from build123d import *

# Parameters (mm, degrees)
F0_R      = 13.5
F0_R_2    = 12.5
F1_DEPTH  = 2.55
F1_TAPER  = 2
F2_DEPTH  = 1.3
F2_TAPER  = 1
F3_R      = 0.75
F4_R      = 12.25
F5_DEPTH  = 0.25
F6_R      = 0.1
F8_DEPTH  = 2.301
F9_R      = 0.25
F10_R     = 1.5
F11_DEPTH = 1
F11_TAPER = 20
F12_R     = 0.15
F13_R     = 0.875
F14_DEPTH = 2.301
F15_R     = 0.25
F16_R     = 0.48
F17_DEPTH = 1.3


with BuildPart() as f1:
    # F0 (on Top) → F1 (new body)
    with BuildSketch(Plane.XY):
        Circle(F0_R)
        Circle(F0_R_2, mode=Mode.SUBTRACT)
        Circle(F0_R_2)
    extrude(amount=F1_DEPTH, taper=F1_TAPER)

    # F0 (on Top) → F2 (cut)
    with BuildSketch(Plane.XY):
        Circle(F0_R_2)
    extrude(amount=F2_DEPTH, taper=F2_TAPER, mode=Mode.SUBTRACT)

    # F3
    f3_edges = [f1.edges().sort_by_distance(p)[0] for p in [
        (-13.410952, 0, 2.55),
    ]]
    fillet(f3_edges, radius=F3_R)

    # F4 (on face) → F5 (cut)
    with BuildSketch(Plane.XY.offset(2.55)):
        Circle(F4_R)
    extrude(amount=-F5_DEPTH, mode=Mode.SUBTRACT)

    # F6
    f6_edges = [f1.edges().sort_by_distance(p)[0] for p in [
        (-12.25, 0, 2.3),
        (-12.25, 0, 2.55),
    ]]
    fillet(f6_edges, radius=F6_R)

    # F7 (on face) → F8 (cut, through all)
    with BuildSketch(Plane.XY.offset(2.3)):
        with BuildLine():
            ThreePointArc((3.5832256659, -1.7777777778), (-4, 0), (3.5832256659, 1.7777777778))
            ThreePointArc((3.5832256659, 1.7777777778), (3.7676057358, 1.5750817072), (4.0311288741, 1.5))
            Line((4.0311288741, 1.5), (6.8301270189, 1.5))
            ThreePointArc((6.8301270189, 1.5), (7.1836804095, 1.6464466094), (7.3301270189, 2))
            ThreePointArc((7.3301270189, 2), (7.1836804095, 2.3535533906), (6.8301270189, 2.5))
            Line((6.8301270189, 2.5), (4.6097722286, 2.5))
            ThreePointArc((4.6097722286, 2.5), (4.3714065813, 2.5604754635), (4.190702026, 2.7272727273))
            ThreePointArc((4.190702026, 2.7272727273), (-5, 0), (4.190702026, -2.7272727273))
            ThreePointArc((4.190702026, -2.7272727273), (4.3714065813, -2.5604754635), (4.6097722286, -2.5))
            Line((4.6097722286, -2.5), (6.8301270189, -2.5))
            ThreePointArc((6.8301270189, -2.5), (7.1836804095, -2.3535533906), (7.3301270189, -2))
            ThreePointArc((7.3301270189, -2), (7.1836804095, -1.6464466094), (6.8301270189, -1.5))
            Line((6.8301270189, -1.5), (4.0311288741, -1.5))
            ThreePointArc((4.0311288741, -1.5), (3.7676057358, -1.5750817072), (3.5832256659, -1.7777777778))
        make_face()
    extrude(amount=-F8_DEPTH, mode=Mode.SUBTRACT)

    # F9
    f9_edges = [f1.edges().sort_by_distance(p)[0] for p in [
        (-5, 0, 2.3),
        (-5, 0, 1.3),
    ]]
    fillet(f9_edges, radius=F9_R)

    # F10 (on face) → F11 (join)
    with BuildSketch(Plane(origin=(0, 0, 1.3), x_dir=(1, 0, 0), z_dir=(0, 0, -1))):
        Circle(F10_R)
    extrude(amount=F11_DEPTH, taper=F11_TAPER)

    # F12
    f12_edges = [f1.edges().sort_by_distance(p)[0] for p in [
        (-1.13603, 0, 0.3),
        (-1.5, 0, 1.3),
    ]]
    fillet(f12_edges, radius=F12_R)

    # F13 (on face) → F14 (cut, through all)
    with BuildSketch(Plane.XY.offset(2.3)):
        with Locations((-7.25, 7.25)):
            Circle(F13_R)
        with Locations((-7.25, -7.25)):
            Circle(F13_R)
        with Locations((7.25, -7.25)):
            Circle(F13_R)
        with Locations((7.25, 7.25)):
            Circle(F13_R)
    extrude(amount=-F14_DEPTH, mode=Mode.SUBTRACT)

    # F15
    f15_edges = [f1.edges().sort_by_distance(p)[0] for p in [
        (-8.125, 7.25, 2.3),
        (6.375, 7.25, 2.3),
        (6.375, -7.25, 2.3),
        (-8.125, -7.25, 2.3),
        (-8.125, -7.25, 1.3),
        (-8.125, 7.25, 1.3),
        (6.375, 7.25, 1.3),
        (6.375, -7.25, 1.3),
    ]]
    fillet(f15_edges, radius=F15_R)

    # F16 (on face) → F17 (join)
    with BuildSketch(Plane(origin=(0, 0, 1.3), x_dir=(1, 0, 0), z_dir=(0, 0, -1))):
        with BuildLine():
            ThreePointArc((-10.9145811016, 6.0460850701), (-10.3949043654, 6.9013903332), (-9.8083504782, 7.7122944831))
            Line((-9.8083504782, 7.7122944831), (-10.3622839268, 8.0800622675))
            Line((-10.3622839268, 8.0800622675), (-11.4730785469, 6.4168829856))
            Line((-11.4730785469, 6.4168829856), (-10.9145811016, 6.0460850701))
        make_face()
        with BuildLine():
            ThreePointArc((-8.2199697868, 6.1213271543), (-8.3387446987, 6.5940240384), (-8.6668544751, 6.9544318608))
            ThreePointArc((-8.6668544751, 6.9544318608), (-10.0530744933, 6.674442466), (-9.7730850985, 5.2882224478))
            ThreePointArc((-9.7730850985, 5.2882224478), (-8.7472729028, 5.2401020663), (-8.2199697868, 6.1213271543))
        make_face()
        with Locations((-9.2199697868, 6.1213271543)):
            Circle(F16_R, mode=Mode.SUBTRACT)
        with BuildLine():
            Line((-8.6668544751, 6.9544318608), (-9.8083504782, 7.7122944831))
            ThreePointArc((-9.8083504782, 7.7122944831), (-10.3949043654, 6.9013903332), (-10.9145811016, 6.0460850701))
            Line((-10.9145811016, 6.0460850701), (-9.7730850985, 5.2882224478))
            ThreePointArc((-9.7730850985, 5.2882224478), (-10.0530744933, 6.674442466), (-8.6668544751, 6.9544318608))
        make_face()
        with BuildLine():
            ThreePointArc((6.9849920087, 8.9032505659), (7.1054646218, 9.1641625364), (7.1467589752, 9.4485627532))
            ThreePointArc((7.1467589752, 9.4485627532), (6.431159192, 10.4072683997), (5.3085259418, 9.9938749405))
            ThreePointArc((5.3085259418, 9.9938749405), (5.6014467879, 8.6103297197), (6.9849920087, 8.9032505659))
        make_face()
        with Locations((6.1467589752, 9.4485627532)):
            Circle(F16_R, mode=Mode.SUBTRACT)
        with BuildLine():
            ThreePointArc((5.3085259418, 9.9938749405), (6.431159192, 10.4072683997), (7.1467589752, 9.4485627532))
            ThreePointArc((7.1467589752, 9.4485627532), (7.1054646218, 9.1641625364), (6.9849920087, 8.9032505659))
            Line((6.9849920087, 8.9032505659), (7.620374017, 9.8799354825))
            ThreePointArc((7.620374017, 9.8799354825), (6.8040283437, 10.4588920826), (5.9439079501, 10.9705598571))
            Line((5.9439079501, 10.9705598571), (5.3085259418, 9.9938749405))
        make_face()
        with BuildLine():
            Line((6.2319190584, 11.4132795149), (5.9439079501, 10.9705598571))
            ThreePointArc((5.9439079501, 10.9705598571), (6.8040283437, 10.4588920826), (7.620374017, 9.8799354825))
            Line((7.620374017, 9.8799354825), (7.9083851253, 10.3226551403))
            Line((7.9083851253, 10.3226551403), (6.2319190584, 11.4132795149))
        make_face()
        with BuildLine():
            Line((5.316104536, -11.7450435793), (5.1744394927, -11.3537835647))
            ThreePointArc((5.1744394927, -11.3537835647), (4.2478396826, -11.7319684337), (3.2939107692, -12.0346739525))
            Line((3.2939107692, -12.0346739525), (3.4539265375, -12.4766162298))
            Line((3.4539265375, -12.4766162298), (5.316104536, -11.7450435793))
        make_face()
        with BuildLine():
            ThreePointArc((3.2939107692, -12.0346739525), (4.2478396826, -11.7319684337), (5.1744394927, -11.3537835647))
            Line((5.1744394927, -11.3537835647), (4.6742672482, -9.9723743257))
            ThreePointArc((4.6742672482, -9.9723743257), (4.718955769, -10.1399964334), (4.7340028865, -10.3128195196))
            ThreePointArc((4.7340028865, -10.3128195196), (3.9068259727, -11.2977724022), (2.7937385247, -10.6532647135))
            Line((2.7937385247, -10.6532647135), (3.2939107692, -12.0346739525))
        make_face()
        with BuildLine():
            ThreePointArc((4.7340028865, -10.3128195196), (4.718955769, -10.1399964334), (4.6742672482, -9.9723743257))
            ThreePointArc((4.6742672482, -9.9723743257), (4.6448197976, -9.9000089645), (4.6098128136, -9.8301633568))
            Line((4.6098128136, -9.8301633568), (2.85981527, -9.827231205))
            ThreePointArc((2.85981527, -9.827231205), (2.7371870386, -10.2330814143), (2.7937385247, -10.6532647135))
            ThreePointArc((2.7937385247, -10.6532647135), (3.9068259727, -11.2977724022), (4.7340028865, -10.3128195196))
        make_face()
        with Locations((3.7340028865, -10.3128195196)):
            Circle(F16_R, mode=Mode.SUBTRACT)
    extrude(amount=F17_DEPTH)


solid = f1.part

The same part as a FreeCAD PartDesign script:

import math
import FreeCAD as App
import Part
import Sketcher

V = App.Vector


def edges_at(feature, points):
    """Names of the edges that pass closest to the given points."""
    edges = feature.Shape.Edges
    near = lambda p: min(range(len(edges)), key=lambda i: edges[i].distToShape(Part.Vertex(*p))[0])
    return sorted({f"Edge{near(p) + 1}" for p in points})

doc = App.newDocument("Part")
body = doc.addObject("PartDesign::Body", "Body")

sketch1 = body.newObject("Sketcher::SketchObject", "Sketch")
sketch1.AttachmentSupport = (doc.getObject("XY_Plane"), [""])
sketch1.MapMode = "FlatFace"
sketch1.addGeometry(Part.Circle(V(0, 0, 0), V(0, 0, 1), 14), False)
sketch1.addConstraint([
    Sketcher.Constraint("Coincident", 0, 3, -1, 1),
    Sketcher.Constraint("Diameter", 0, 27.0),
])
pad1 = body.newObject("PartDesign::Pad", "Pad")
pad1.Profile = sketch1
pad1.Length = 2.55
pad1.TaperAngle = -2

sketch2 = body.newObject("Sketcher::SketchObject", "Sketch001")
sketch2.AttachmentSupport = (doc.getObject("XY_Plane"), [""])
sketch2.MapMode = "FlatFace"
sketch2.addGeometry(Part.Circle(V(0, 0, 0), V(0, 0, 1), 12), False)
sketch2.addConstraint([
    Sketcher.Constraint("Coincident", 0, 3, -1, 1),
    Sketcher.Constraint("Diameter", 0, 25.0),
])
pocket1 = body.newObject("PartDesign::Pocket", "Pocket")
pocket1.Profile = sketch2
pocket1.Length = 1.3
pocket1.Reversed = True
pocket1.TaperAngle = -1
doc.recompute()

fillet = body.newObject("PartDesign::Fillet", "Fillet")
fillet.Base = (pocket1, edges_at(pocket1, [(-13.411, 0, 2.55)]))
fillet.Radius = 0.75

sketch3 = body.newObject("Sketcher::SketchObject", "Sketch002")
sketch3.AttachmentSupport = (doc.getObject("XY_Plane"), [""])
sketch3.MapMode = "FlatFace"
sketch3.AttachmentOffset = App.Placement(V(0, 0, 2.55), App.Rotation())
sketch3.addGeometry(Part.Circle(V(0, 0, 0), V(0, 0, 1), 12), False)
sketch3.addConstraint([
    Sketcher.Constraint("Coincident", 0, 3, -1, 1),
    Sketcher.Constraint("Diameter", 0, 24.5),
])
pocket2 = body.newObject("PartDesign::Pocket", "Pocket001")
pocket2.Profile = sketch3
pocket2.Length = 0.25
doc.recompute()

fillet2 = body.newObject("PartDesign::Fillet", "Fillet001")
fillet2.Base = (pocket2, edges_at(pocket2, [(-12.25, 0, 2.3), (-12.25, 0, 2.55)]))
fillet2.Radius = 0.1

sketch4 = body.newObject("Sketcher::SketchObject", "Sketch003")
sketch4.AttachmentSupport = (doc.getObject("XY_Plane"), [""])
sketch4.MapMode = "FlatFace"
sketch4.AttachmentOffset = App.Placement(V(0, 0, 2.3), App.Rotation())
sketch4.addGeometry([
    Part.ArcOfCircle(Part.Circle(V(0, 0, 0), V(0, 0, 1), 4), math.radians(26), math.radians(334)),
    Part.ArcOfCircle(Part.Circle(V(4.03, 2, 0), V(0, 0, 1), 0.5), math.radians(-154), math.radians(-90)),
    Part.LineSegment(V(4.03, 1.5, 0), V(6.83, 1.5, 0)),
    Part.ArcOfCircle(Part.Circle(V(6.83, 2, 0), V(0, 0, 1), 0.5), math.radians(-90), math.radians(0)),
    Part.ArcOfCircle(Part.Circle(V(6.83, 2, 0), V(0, 0, 1), 0.5), math.radians(0), math.radians(90)),
    Part.LineSegment(V(6.83, 2.5, 0), V(4.61, 2.5, 0)),
    Part.ArcOfCircle(Part.Circle(V(4.61, 3, 0), V(0, 0, 1), 0.5), math.radians(-147), math.radians(-90)),
    Part.ArcOfCircle(Part.Circle(V(0, 0, 0), V(0, 0, 1), 5), math.radians(33), math.radians(327)),
    Part.ArcOfCircle(Part.Circle(V(4.61, -3, 0), V(0, 0, 1), 0.5), math.radians(90), math.radians(147)),
    Part.LineSegment(V(4.61, -2.5, 0), V(6.83, -2.5, 0)),
    Part.ArcOfCircle(Part.Circle(V(6.83, -2, 0), V(0, 0, 1), 0.5), math.radians(-90), math.radians(0)),
    Part.ArcOfCircle(Part.Circle(V(6.83, -2, 0), V(0, 0, 1), 0.5), math.radians(0), math.radians(90)),
    Part.LineSegment(V(6.83, -1.5, 0), V(4.03, -1.5, 0)),
    Part.ArcOfCircle(Part.Circle(V(4.03, -2, 0), V(0, 0, 1), 0.5), math.radians(90), math.radians(154)),
], False)
sketch4.addConstraint([
    Sketcher.Constraint("Tangent", 0, 1, 1, 1),
    Sketcher.Constraint("Tangent", 1, 2, 2, 1),
    Sketcher.Constraint("Tangent", 2, 2, 3, 1),
    Sketcher.Constraint("Tangent", 3, 2, 4, 1),
    Sketcher.Constraint("Tangent", 4, 2, 5, 1),
    Sketcher.Constraint("Tangent", 5, 2, 6, 2),
    Sketcher.Constraint("Tangent", 6, 1, 7, 1),
    Sketcher.Constraint("Tangent", 7, 2, 8, 2),
    Sketcher.Constraint("Tangent", 8, 1, 9, 1),
    Sketcher.Constraint("Tangent", 9, 2, 10, 1),
    Sketcher.Constraint("Tangent", 10, 2, 11, 1),
    Sketcher.Constraint("Tangent", 11, 2, 12, 1),
    Sketcher.Constraint("Tangent", 12, 2, 13, 1),
    Sketcher.Constraint("Tangent", 13, 2, 0, 2),
    Sketcher.Constraint("Horizontal", 2),
    Sketcher.Constraint("Horizontal", 5),
    Sketcher.Constraint("Horizontal", 9),
    Sketcher.Constraint("Horizontal", 12),
    Sketcher.Constraint("Coincident", 0, 3, -1, 1),
    Sketcher.Constraint("Coincident", 7, 3, -1, 1),
    Sketcher.Constraint("Equal", 1, 3),
    Sketcher.Constraint("Equal", 3, 4),
    Sketcher.Constraint("Equal", 4, 6),
    Sketcher.Constraint("Equal", 6, 8),
    Sketcher.Constraint("Equal", 8, 10),
    Sketcher.Constraint("Equal", 10, 11),
    Sketcher.Constraint("Equal", 11, 13),
    Sketcher.Constraint("Symmetric", 3, 3, 10, 3, -1),
    Sketcher.Constraint("Horizontal", 4, 3, 3, 2),
    Sketcher.Constraint("Horizontal", 13, 3, 10, 2),
    Sketcher.Constraint("Radius", 0, 4.0),
    Sketcher.Constraint("Radius", 7, 5.0),
    Sketcher.Constraint("Radius", 1, 0.5),
    Sketcher.Constraint("DistanceY", -1, 1, 1, 3, 2.0),
    Sketcher.Constraint("DistanceX", 2, 1, 2, 2, 2.798998),
])
pocket3 = body.newObject("PartDesign::Pocket", "Pocket002")
pocket3.Profile = sketch4
pocket3.Type = "ThroughAll"
doc.recompute()

fillet3 = body.newObject("PartDesign::Fillet", "Fillet002")
fillet3.Base = (pocket3, edges_at(pocket3, [(-5, 0, 2.3), (-5, 0, 1.3)]))
fillet3.Radius = 0.25

sketch5 = body.newObject("Sketcher::SketchObject", "Sketch004")
sketch5.AttachmentSupport = (doc.getObject("XY_Plane"), [""])
sketch5.MapMode = "FlatFace"
sketch5.AttachmentOffset = App.Placement(V(0, 0, 1.3), App.Rotation())
sketch5.addGeometry(Part.Circle(V(0, 0, 0), V(0, 0, 1), 1.5), False)
sketch5.addConstraint([
    Sketcher.Constraint("Coincident", 0, 3, -1, 1),
    Sketcher.Constraint("Diameter", 0, 3.0),
])
pad2 = body.newObject("PartDesign::Pad", "Pad001")
pad2.Profile = sketch5
pad2.Length = 1
pad2.Reversed = True
pad2.TaperAngle = -20
doc.recompute()

fillet4 = body.newObject("PartDesign::Fillet", "Fillet003")
fillet4.Base = (pad2, edges_at(pad2, [(-1.136, 0, 0.3), (-1.5, 0, 1.3)]))
fillet4.Radius = 0.15

sketch6 = body.newObject("Sketcher::SketchObject", "Sketch005")
sketch6.AttachmentSupport = (doc.getObject("XY_Plane"), [""])
sketch6.MapMode = "FlatFace"
sketch6.AttachmentOffset = App.Placement(V(0, 0, 2.3), App.Rotation())
sketch6.addGeometry([
    Part.Circle(V(-7.2, 7.2, 0), V(0, 0, 1), 0.9),
    Part.Circle(V(-7.2, -7.2, 0), V(0, 0, 1), 0.9),
    Part.Circle(V(7.2, -7.2, 0), V(0, 0, 1), 0.9),
    Part.Circle(V(7.2, 7.2, 0), V(0, 0, 1), 0.9),
], False)
sketch6.addConstraint([
    Sketcher.Constraint("Equal", 0, 1),
    Sketcher.Constraint("Equal", 1, 2),
    Sketcher.Constraint("Equal", 2, 3),
    Sketcher.Constraint("Symmetric", 0, 3, 2, 3, -1, 1),
    Sketcher.Constraint("Symmetric", 1, 3, 3, 3, -1, 1),
    Sketcher.Constraint("Symmetric", 1, 3, 2, 3, -2),
    Sketcher.Constraint("Diameter", 0, 1.75),
    Sketcher.Constraint("DistanceY", 1, 3, 0, 3, 14.5),
    Sketcher.Constraint("DistanceX", 1, 3, 2, 3, 14.5),
])
pocket4 = body.newObject("PartDesign::Pocket", "Pocket003")
pocket4.Profile = sketch6
pocket4.Type = "ThroughAll"
doc.recompute()

fillet5 = body.newObject("PartDesign::Fillet", "Fillet004")
fillet5.Base = (pocket4, edges_at(pocket4, [
    (-8.125, 7.25, 2.3),
    (6.375, 7.25, 2.3),
    (6.375, -7.25, 2.3),
    (-8.125, -7.25, 2.3),
    (-8.125, -7.25, 1.3),
    (-8.125, 7.25, 1.3),
    (6.375, 7.25, 1.3),
    (6.375, -7.25, 1.3),
]))
fillet5.Radius = 0.25

sketch7 = body.newObject("Sketcher::SketchObject", "Sketch006")
sketch7.AttachmentSupport = (doc.getObject("XY_Plane"), [""])
sketch7.MapMode = "FlatFace"
sketch7.AttachmentOffset = App.Placement(V(0, 0, 1.3), App.Rotation())
sketch7.addGeometry([
    Part.LineSegment(V(-9.81, -7.71, 0), V(-10.36, -8.08, 0)),
    Part.LineSegment(V(-10.36, -8.08, 0), V(-11.47, -6.42, 0)),
    Part.LineSegment(V(-11.47, -6.42, 0), V(-10.91, -6.05, 0)),
    Part.LineSegment(V(-10.91, -6.05, 0), V(-9.77, -5.29, 0)),
    Part.ArcOfCircle(Part.Circle(V(-9.22, -6.12, 0), V(0, 0, 1), 1), math.radians(0), math.radians(124)),
    Part.ArcOfCircle(Part.Circle(V(-9.22, -6.12, 0), V(0, 0, 1), 1), math.radians(-56), math.radians(0)),
    Part.LineSegment(V(-8.67, -6.95, 0), V(-9.81, -7.71, 0)),
    Part.Circle(V(-9.22, -6.12, 0), V(0, 0, 1), 0.48),
    Part.ArcOfCircle(Part.Circle(V(6.15, -9.45, 0), V(0, 0, 1), 1), math.radians(33), math.radians(213)),
    Part.LineSegment(V(6.98, -8.9, 0), V(7.62, -9.88, 0)),
    Part.LineSegment(V(7.62, -9.88, 0), V(7.91, -10.32, 0)),
    Part.LineSegment(V(7.91, -10.32, 0), V(6.23, -11.41, 0)),
    Part.LineSegment(V(6.23, -11.41, 0), V(5.94, -10.97, 0)),
    Part.LineSegment(V(5.94, -10.97, 0), V(5.31, -9.99, 0)),
    Part.Circle(V(6.15, -9.45, 0), V(0, 0, 1), 0.48),
    Part.LineSegment(V(5.32, 11.75, 0), V(5.17, 11.35, 0)),
    Part.LineSegment(V(5.17, 11.35, 0), V(4.67, 9.97, 0)),
    Part.ArcOfCircle(Part.Circle(V(3.73, 10.31, 0), V(0, 0, 1), 1), math.radians(-28.86), math.radians(-19.9)),
    Part.LineSegment(V(4.61, 9.83, 0), V(2.86, 9.83, 0)),
    Part.ArcOfCircle(Part.Circle(V(3.73, 10.31, 0), V(0, 0, 1), 1), math.radians(160), math.radians(209)),
    Part.LineSegment(V(2.79, 10.65, 0), V(3.29, 12.03, 0)),
    Part.LineSegment(V(3.29, 12.03, 0), V(3.45, 12.48, 0)),
    Part.LineSegment(V(3.45, 12.48, 0), V(5.32, 11.75, 0)),
    Part.Circle(V(3.73, 10.31, 0), V(0, 0, 1), 0.48),
], False)
sketch7.addConstraint([
    Sketcher.Constraint("Coincident", 0, 2, 1, 1),
    Sketcher.Constraint("Coincident", 1, 2, 2, 1),
    Sketcher.Constraint("Coincident", 2, 2, 3, 1),
    Sketcher.Constraint("Tangent", 3, 2, 4, 2),
    Sketcher.Constraint("Tangent", 4, 1, 5, 2),
    Sketcher.Constraint("Tangent", 5, 1, 6, 1),
    Sketcher.Constraint("Coincident", 6, 2, 0, 1),
    Sketcher.Constraint("Tangent", 8, 1, 9, 1),
    Sketcher.Constraint("Coincident", 9, 2, 10, 1),
    Sketcher.Constraint("Coincident", 10, 2, 11, 1),
    Sketcher.Constraint("Coincident", 11, 2, 12, 1),
    Sketcher.Constraint("Coincident", 12, 2, 13, 1),
    Sketcher.Constraint("Tangent", 13, 2, 8, 2),
    Sketcher.Constraint("Coincident", 15, 2, 16, 1),
    Sketcher.Constraint("Tangent", 16, 2, 17, 2),
    Sketcher.Constraint("Coincident", 17, 1, 18, 1),
    Sketcher.Constraint("Coincident", 18, 2, 19, 2),
    Sketcher.Constraint("Tangent", 19, 1, 20, 1),
    Sketcher.Constraint("Coincident", 20, 2, 21, 1),
    Sketcher.Constraint("Coincident", 21, 2, 22, 1),
    Sketcher.Constraint("Coincident", 22, 2, 15, 1),
    Sketcher.Constraint("Coincident", 7, 3, 4, 3),
    Sketcher.Constraint("Coincident", 14, 3, 8, 3),
    Sketcher.Constraint("Coincident", 19, 3, 17, 3),
    Sketcher.Constraint("Coincident", 23, 3, 17, 3),
    Sketcher.Constraint("Equal", 4, 5),
    Sketcher.Constraint("Equal", 5, 8),
    Sketcher.Constraint("Equal", 7, 14),
    Sketcher.Constraint("Equal", 8, 17),
    Sketcher.Constraint("Equal", 17, 19),
    Sketcher.Constraint("Equal", 14, 23),
    Sketcher.Constraint("Parallel", 0, 2),
    Sketcher.Constraint("Parallel", 2, 3),
    Sketcher.Constraint("Parallel", 3, 6),
    Sketcher.Constraint("Parallel", 9, 10),
    Sketcher.Constraint("Perpendicular", 10, 11),
    Sketcher.Constraint("Perpendicular", 11, 12),
    Sketcher.Constraint("Parallel", 12, 13),
    Sketcher.Constraint("Parallel", 15, 16),
    Sketcher.Constraint("Parallel", 16, 20),
    Sketcher.Constraint("Parallel", 20, 21),
    Sketcher.Constraint("Horizontal", 7, 3, 4, 1),
    Sketcher.Constraint("Equal", 3, 6),
    Sketcher.Constraint("Equal", 10, 12),
    Sketcher.Constraint("Equal", 16, 20),
    Sketcher.Constraint("Radius", 4, 1.0),
    Sketcher.Constraint("Diameter", 7, 0.96),
    Sketcher.Constraint("Distance", 18, 1.75),
    Sketcher.Constraint("DistanceY", 8, 3, 0, 2, 1.3685),
    Sketcher.Constraint("DistanceY", 17, 1, 19, 1, 0.823101),
    Sketcher.Constraint("Distance", 2, 0.670381),
    Sketcher.Constraint("Distance", 3, 1.370171),
    Sketcher.Constraint("Distance", 9, 1.165171),
    Sketcher.Constraint("Distance", 10, 0.528158),
    Sketcher.Constraint("Distance", 16, 1.469171),
    Sketcher.Constraint("Distance", 21, 0.470019),
    Sketcher.Constraint("DistanceX", 4, 3, -1, 1, 9.21997),
    Sketcher.Constraint("DistanceX", -1, 1, 8, 3, 6.146759),
    Sketcher.Constraint("DistanceY", -1, 1, 17, 3, 10.31282),
    Sketcher.Constraint("DistanceX", 1, 2, -1, 1, 11.473079),
    Sketcher.Constraint("DistanceY", 5, 1, -1, 1, 6.954432),
    Sketcher.Constraint("DistanceY", 8, 1, -1, 1, 8.903251),
    Sketcher.Constraint("DistanceX", -1, 1, 11, 2, 6.231919),
    Sketcher.Constraint("DistanceX", -1, 1, 15, 2, 5.174439),
    Sketcher.Constraint("DistanceY", -1, 1, 18, 2, 9.827231),
    Sketcher.Constraint("DistanceY", 15, 2, 22, 2, 0.39126),
])
pad3 = body.newObject("PartDesign::Pad", "Pad002")
pad3.Profile = sketch7
pad3.Length = 1.3
pad3.Reversed = True

doc.recompute()
